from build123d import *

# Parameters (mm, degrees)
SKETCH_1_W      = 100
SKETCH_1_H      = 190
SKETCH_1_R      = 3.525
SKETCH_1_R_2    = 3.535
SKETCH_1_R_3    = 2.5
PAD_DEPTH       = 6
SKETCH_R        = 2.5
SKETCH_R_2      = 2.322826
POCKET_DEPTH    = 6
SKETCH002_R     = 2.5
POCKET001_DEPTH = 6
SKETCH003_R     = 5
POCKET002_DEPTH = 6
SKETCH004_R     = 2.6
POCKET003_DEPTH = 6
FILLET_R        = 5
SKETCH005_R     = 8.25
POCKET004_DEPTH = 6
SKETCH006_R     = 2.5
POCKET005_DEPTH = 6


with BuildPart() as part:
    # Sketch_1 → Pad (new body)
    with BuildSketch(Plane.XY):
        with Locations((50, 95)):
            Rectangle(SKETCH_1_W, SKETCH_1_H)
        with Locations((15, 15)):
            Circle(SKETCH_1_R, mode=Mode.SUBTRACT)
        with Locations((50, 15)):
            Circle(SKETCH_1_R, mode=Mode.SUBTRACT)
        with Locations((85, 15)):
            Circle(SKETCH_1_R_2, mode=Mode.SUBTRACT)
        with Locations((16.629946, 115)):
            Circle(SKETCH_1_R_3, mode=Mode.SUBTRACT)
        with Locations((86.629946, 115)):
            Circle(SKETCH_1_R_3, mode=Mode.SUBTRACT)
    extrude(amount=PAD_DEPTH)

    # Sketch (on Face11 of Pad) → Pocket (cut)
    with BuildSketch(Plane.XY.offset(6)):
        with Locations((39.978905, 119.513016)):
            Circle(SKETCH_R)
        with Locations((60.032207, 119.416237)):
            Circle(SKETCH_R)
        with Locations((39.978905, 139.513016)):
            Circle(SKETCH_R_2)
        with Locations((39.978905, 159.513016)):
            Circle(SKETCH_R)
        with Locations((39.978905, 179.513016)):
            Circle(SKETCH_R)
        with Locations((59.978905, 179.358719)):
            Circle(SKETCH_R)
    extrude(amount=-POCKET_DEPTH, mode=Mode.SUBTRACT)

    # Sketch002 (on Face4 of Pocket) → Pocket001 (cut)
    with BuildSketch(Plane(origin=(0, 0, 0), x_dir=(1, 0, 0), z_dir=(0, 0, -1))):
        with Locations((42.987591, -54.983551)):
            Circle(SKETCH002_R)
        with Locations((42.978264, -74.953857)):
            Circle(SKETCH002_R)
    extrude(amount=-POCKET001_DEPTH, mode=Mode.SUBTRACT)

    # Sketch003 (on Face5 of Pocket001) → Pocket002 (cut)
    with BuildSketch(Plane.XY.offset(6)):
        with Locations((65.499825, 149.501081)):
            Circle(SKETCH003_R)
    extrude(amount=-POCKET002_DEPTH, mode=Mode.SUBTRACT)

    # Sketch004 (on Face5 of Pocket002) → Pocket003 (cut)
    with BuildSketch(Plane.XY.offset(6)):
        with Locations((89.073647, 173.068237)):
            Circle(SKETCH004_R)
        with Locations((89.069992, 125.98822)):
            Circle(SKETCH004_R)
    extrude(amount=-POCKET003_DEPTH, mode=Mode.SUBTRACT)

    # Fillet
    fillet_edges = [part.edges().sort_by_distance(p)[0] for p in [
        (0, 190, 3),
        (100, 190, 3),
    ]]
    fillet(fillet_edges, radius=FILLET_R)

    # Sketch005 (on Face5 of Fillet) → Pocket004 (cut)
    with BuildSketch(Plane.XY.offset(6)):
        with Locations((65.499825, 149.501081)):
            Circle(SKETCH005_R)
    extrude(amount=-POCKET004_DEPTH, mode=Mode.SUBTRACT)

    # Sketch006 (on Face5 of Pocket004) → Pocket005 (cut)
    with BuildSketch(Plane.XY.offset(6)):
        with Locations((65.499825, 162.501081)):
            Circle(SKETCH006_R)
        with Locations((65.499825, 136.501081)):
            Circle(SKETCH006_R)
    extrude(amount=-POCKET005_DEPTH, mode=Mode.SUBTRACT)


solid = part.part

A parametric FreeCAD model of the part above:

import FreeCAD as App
import Part
import Sketcher


def edges_at(feature, points):
    """Names of the edges that pass closest to the given points."""
    edges = feature.Shape.Edges
    near = lambda p: min(range(len(edges)), key=lambda i: edges[i].distToShape(Part.Vertex(*p))[0])
    return sorted({f"Edge{near(p) + 1}" for p in points})

doc = App.newDocument("Part")
body = doc.addObject("PartDesign::Body", "Body")

sketch1 = doc.addObject("Sketcher::SketchObject", "Sketch")
body.addObject(sketch1)
sketch1.AttachmentSupport = (doc.XY_Plane, [""])
sketch1.MapMode = "FlatFace"
sketch1.addGeometry(Part.LineSegment(App.Vector(0, 190, 0), App.Vector(0, 0, 0)), False)
sketch1.addGeometry(Part.LineSegment(App.Vector(0, 0, 0), App.Vector(100, 0, 0)), False)
sketch1.addGeometry(Part.LineSegment(App.Vector(100, 0, 0), App.Vector(100, 190, 0)), False)
sketch1.addGeometry(Part.LineSegment(App.Vector(100, 190, 0), App.Vector(0, 190, 0)), False)
sketch1.addGeometry(Part.Circle(App.Vector(15, 15, 0), App.Vector(0, 0, 1), 3.5), False)
sketch1.addGeometry(Part.Circle(App.Vector(50, 15, 0), App.Vector(0, 0, 1), 3.5), False)
sketch1.addGeometry(Part.Circle(App.Vector(85, 15, 0), App.Vector(0, 0, 1), 3.5), False)
sketch1.addGeometry(Part.Circle(App.Vector(16.6, 115, 0), App.Vector(0, 0, 1), 2.5), False)
sketch1.addGeometry(Part.Circle(App.Vector(86.6, 115, 0), App.Vector(0, 0, 1), 2.5), False)
sketch1.addConstraint(Sketcher.Constraint("Coincident", 0, 2, 1, 1))
sketch1.addConstraint(Sketcher.Constraint("Coincident", 1, 2, 2, 1))
sketch1.addConstraint(Sketcher.Constraint("Coincident", 2, 2, 3, 1))
sketch1.addConstraint(Sketcher.Constraint("Coincident", 3, 2, 0, 1))
sketch1.addConstraint(Sketcher.Constraint("Vertical", 0))
sketch1.addConstraint(Sketcher.Constraint("Horizontal", 1))
sketch1.addConstraint(Sketcher.Constraint("Vertical", 2))
sketch1.addConstraint(Sketcher.Constraint("Horizontal", 3))
sketch1.addConstraint(Sketcher.Constraint("Coincident", 0, 2, -1, 1))
sketch1.addConstraint(Sketcher.Constraint("Equal", 4, 5))
sketch1.addConstraint(Sketcher.Constraint("Equal", 7, 8))
sketch1.addConstraint(Sketcher.Constraint("Horizontal", 4, 3, 5, 3))
sketch1.addConstraint(Sketcher.Constraint("Horizontal", 5, 3, 6, 3))
sketch1.addConstraint(Sketcher.Constraint("Horizontal", 7, 3, 8, 3))
sketch1.addConstraint(Sketcher.Constraint("Diameter", 7, 5.0))
sketch1.addConstraint(Sketcher.Constraint("Diameter", 4, 7.05))
sketch1.addConstraint(Sketcher.Constraint("Diameter", 6, 7.07))
sketch1.addConstraint(Sketcher.Constraint("DistanceX", 1, 1, 1, 2, 100.0))
sketch1.addConstraint(Sketcher.Constraint("DistanceY", 0, 2, 0, 1, 190.0))
sketch1.addConstraint(Sketcher.Constraint("DistanceX", -1, 1, 4, 3, 15.0))
sketch1.addConstraint(Sketcher.Constraint("DistanceY", -1, 1, 4, 3, 15.0))
sketch1.addConstraint(Sketcher.Constraint("DistanceX", -1, 1, 5, 3, 50.0))
sketch1.addConstraint(Sketcher.Constraint("DistanceX", -1, 1, 6, 3, 85.0))
sketch1.addConstraint(Sketcher.Constraint("DistanceY", -1, 1, 7, 3, 115.0))
sketch1.addConstraint(Sketcher.Constraint("DistanceX", 7, 3, 8, 3, 70.0))
sketch1.addConstraint(Sketcher.Constraint("DistanceX", -1, 1, 7, 3, 16.629946))
pad1 = doc.addObject("PartDesign::Pad", "Pad")
body.addObject(pad1)
pad1.Profile = sketch1
pad1.Length = 6

sketch2 = doc.addObject("Sketcher::SketchObject", "Sketch001")
body.addObject(sketch2)
sketch2.AttachmentSupport = (doc.XY_Plane, [""])
sketch2.MapMode = "FlatFace"
sketch2.AttachmentOffset = App.Placement(App.Vector(0, 0, 6), App.Rotation())
sketch2.addGeometry(Part.Circle(App.Vector(40, 119.5, 0), App.Vector(0, 0, 1), 2.5), False)
sketch2.addGeometry(Part.Circle(App.Vector(60, 119.4, 0), App.Vector(0, 0, 1), 2.5), False)
sketch2.addGeometry(Part.Circle(App.Vector(40, 139.5, 0), App.Vector(0, 0, 1), 2.3), False)
sketch2.addGeometry(Part.Circle(App.Vector(40, 159.5, 0), App.Vector(0, 0, 1), 2.5), False)
sketch2.addGeometry(Part.Circle(App.Vector(40, 179.5, 0), App.Vector(0, 0, 1), 2.5), False)
sketch2.addGeometry(Part.Circle(App.Vector(60, 179.4, 0), App.Vector(0, 0, 1), 2.5), False)
sketch2.addConstraint(Sketcher.Constraint("Equal", 0, 1))
sketch2.addConstraint(Sketcher.Constraint("Equal", 1, 3))
sketch2.addConstraint(Sketcher.Constraint("Equal", 3, 4))
sketch2.addConstraint(Sketcher.Constraint("Equal", 4, 5))
sketch2.addConstraint(Sketcher.Constraint("Vertical", 0, 3, 2, 3))
sketch2.addConstraint(Sketcher.Constraint("Vertical", 2, 3, 3, 3))
sketch2.addConstraint(Sketcher.Constraint("Vertical", 3, 3, 4, 3))
sketch2.addConstraint(Sketcher.Constraint("Diameter", 0, 5.0))
sketch2.addConstraint(Sketcher.Constraint("DistanceY", 0, 3, 2, 3, 20.0))
sketch2.addConstraint(Sketcher.Constraint("DistanceY", 2, 3, 3, 3, 20.0))
sketch2.addConstraint(Sketcher.Constraint("DistanceY", 3, 3, 4, 3, 20.0))
sketch2.addConstraint(Sketcher.Constraint("DistanceX", 4, 3, 5, 3, 20.0))
sketch2.addConstraint(Sketcher.Constraint("Diameter", 2, 4.645652))
sketch2.addConstraint(Sketcher.Constraint("DistanceY", -1, 1, 5, 3, 179.358719))
sketch2.addConstraint(Sketcher.Constraint("DistanceY", 1, 3, 0, 3, 0.096779))
sketch2.addConstraint(Sketcher.Constraint("DistanceX", -1, 1, 0, 3, 39.978905))
sketch2.addConstraint(Sketcher.Constraint("DistanceY", -1, 1, 0, 3, 119.513016))
sketch2.addConstraint(Sketcher.Constraint("DistanceX", -1, 1, 1, 3, 60.032207))
pocket1 = doc.addObject("PartDesign::Pocket", "Pocket")
body.addObject(pocket1)
pocket1.Profile = sketch2
pocket1.Length = 6

sketch3 = doc.addObject("Sketcher::SketchObject", "Sketch002")
body.addObject(sketch3)
sketch3.AttachmentSupport = (doc.XY_Plane, [""])
sketch3.MapMode = "FlatFace"
sketch3.addGeometry(Part.Circle(App.Vector(43, 55, 0), App.Vector(0, 0, 1), 2.5), False)
sketch3.addGeometry(Part.Circle(App.Vector(43, 75, 0), App.Vector(0, 0, 1), 2.5), False)
sketch3.addConstraint(Sketcher.Constraint("Equal", 0, 1))
sketch3.addConstraint(Sketcher.Constraint("Diameter", 0, 5.0))
sketch3.addConstraint(Sketcher.Constraint("DistanceX", -1, 1, 0, 3, 42.987591))
sketch3.addConstraint(Sketcher.Constraint("DistanceY", -1, 1, 0, 3, 54.983551))
sketch3.addConstraint(Sketcher.Constraint("DistanceX", -1, 1, 1, 3, 42.978264))
sketch3.addConstraint(Sketcher.Constraint("DistanceY", -1, 1, 1, 3, 74.953857))
pocket2 = doc.addObject("PartDesign::Pocket", "Pocket001")
body.addObject(pocket2)
pocket2.Profile = sketch3
pocket2.Length = 6
pocket2.Reversed = True

sketch4 = doc.addObject("Sketcher::SketchObject", "Sketch003")
body.addObject(sketch4)
sketch4.AttachmentSupport = (doc.XY_Plane, [""])
sketch4.MapMode = "FlatFace"
sketch4.AttachmentOffset = App.Placement(App.Vector(0, 0, 6), App.Rotation())
sketch4.addGeometry(Part.Circle(App.Vector(65, 150, 0), App.Vector(0, 0, 1), 5), False)
sketch4.addConstraint(Sketcher.Constraint("Diameter", 0, 10.0))
sketch4.addConstraint(Sketcher.Constraint("DistanceY", -1, 1, 0, 3, 149.501081))
sketch4.addConstraint(Sketcher.Constraint("DistanceX", -1, 1, 0, 3, 65.499825))
pocket3 = doc.addObject("PartDesign::Pocket", "Pocket002")
body.addObject(pocket3)
pocket3.Profile = sketch4
pocket3.Length = 6

sketch5 = doc.addObject("Sketcher::SketchObject", "Sketch004")
body.addObject(sketch5)
sketch5.AttachmentSupport = (doc.XY_Plane, [""])
sketch5.MapMode = "FlatFace"
sketch5.AttachmentOffset = App.Placement(App.Vector(0, 0, 6), App.Rotation())
sketch5.addGeometry(Part.Circle(App.Vector(89.1, 173.1, 0), App.Vector(0, 0, 1), 2.6), False)
sketch5.addGeometry(Part.Circle(App.Vector(89.1, 126, 0), App.Vector(0, 0, 1), 2.6), False)
sketch5.addConstraint(Sketcher.Constraint("Equal", 0, 1))
sketch5.addConstraint(Sketcher.Constraint("Diameter", 0, 5.2))
sketch5.addConstraint(Sketcher.Constraint("DistanceX", -1, 1, 1, 3, 89.069992))
sketch5.addConstraint(Sketcher.Constraint("DistanceY", -1, 1, 1, 3, 125.98822))
sketch5.addConstraint(Sketcher.Constraint("DistanceX", -1, 1, 0, 3, 89.073647))
sketch5.addConstraint(Sketcher.Constraint("DistanceY", -1, 1, 0, 3, 173.068237))
pocket4 = doc.addObject("PartDesign::Pocket", "Pocket003")
body.addObject(pocket4)
pocket4.Profile = sketch5
pocket4.Length = 6
doc.recompute()

fillet = doc.addObject("PartDesign::Fillet", "Fillet")
body.addObject(fillet)
fillet.Base = (pocket4, edges_at(pocket4, [(0, 190, 3), (100, 190, 3)]))
fillet.Radius = 5

sketch6 = doc.addObject("Sketcher::SketchObject", "Sketch005")
body.addObject(sketch6)
sketch6.AttachmentSupport = (doc.XY_Plane, [""])
sketch6.MapMode = "FlatFace"
sketch6.AttachmentOffset = App.Placement(App.Vector(0, 0, 6), App.Rotation())
sketch6.addGeometry(Part.Circle(App.Vector(65, 150, 0), App.Vector(0, 0, 1), 8), False)
sketch6.addConstraint(Sketcher.Constraint("Diameter", 0, 16.5))
sketch6.addConstraint(Sketcher.Constraint("DistanceY", -1, 1, 0, 3, 149.501081))
sketch6.addConstraint(Sketcher.Constraint("DistanceX", -1, 1, 0, 3, 65.499825))
pocket5 = doc.addObject("PartDesign::Pocket", "Pocket004")
body.addObject(pocket5)
pocket5.Profile = sketch6
pocket5.Length = 6

sketch7 = doc.addObject("Sketcher::SketchObject", "Sketch006")
body.addObject(sketch7)
sketch7.AttachmentSupport = (doc.XY_Plane, [""])
sketch7.MapMode = "FlatFace"
sketch7.AttachmentOffset = App.Placement(App.Vector(0, 0, 6), App.Rotation())
sketch7.addGeometry(Part.Circle(App.Vector(65.5, 162.5, 0), App.Vector(0, 0, 1), 2.5), False)
sketch7.addGeometry(Part.Circle(App.Vector(65.5, 136.5, 0), App.Vector(0, 0, 1), 2.5), False)
sketch7.addConstraint(Sketcher.Constraint("Equal", 0, 1))
sketch7.addConstraint(Sketcher.Constraint("Vertical", 0, 3, 1, 3))
sketch7.addConstraint(Sketcher.Constraint("Diameter", 0, 5.0))
sketch7.addConstraint(Sketcher.Constraint("DistanceY", 1, 3, 0, 3, 26.0))
sketch7.addConstraint(Sketcher.Constraint("DistanceY", -1, 1, 0, 3, 162.501081))
sketch7.addConstraint(Sketcher.Constraint("DistanceX", -1, 1, 0, 3, 65.499825))
pocket6 = doc.addObject("PartDesign::Pocket", "Pocket005")
body.addObject(pocket6)
pocket6.Profile = sketch7
pocket6.Length = 6

doc.recompute()
